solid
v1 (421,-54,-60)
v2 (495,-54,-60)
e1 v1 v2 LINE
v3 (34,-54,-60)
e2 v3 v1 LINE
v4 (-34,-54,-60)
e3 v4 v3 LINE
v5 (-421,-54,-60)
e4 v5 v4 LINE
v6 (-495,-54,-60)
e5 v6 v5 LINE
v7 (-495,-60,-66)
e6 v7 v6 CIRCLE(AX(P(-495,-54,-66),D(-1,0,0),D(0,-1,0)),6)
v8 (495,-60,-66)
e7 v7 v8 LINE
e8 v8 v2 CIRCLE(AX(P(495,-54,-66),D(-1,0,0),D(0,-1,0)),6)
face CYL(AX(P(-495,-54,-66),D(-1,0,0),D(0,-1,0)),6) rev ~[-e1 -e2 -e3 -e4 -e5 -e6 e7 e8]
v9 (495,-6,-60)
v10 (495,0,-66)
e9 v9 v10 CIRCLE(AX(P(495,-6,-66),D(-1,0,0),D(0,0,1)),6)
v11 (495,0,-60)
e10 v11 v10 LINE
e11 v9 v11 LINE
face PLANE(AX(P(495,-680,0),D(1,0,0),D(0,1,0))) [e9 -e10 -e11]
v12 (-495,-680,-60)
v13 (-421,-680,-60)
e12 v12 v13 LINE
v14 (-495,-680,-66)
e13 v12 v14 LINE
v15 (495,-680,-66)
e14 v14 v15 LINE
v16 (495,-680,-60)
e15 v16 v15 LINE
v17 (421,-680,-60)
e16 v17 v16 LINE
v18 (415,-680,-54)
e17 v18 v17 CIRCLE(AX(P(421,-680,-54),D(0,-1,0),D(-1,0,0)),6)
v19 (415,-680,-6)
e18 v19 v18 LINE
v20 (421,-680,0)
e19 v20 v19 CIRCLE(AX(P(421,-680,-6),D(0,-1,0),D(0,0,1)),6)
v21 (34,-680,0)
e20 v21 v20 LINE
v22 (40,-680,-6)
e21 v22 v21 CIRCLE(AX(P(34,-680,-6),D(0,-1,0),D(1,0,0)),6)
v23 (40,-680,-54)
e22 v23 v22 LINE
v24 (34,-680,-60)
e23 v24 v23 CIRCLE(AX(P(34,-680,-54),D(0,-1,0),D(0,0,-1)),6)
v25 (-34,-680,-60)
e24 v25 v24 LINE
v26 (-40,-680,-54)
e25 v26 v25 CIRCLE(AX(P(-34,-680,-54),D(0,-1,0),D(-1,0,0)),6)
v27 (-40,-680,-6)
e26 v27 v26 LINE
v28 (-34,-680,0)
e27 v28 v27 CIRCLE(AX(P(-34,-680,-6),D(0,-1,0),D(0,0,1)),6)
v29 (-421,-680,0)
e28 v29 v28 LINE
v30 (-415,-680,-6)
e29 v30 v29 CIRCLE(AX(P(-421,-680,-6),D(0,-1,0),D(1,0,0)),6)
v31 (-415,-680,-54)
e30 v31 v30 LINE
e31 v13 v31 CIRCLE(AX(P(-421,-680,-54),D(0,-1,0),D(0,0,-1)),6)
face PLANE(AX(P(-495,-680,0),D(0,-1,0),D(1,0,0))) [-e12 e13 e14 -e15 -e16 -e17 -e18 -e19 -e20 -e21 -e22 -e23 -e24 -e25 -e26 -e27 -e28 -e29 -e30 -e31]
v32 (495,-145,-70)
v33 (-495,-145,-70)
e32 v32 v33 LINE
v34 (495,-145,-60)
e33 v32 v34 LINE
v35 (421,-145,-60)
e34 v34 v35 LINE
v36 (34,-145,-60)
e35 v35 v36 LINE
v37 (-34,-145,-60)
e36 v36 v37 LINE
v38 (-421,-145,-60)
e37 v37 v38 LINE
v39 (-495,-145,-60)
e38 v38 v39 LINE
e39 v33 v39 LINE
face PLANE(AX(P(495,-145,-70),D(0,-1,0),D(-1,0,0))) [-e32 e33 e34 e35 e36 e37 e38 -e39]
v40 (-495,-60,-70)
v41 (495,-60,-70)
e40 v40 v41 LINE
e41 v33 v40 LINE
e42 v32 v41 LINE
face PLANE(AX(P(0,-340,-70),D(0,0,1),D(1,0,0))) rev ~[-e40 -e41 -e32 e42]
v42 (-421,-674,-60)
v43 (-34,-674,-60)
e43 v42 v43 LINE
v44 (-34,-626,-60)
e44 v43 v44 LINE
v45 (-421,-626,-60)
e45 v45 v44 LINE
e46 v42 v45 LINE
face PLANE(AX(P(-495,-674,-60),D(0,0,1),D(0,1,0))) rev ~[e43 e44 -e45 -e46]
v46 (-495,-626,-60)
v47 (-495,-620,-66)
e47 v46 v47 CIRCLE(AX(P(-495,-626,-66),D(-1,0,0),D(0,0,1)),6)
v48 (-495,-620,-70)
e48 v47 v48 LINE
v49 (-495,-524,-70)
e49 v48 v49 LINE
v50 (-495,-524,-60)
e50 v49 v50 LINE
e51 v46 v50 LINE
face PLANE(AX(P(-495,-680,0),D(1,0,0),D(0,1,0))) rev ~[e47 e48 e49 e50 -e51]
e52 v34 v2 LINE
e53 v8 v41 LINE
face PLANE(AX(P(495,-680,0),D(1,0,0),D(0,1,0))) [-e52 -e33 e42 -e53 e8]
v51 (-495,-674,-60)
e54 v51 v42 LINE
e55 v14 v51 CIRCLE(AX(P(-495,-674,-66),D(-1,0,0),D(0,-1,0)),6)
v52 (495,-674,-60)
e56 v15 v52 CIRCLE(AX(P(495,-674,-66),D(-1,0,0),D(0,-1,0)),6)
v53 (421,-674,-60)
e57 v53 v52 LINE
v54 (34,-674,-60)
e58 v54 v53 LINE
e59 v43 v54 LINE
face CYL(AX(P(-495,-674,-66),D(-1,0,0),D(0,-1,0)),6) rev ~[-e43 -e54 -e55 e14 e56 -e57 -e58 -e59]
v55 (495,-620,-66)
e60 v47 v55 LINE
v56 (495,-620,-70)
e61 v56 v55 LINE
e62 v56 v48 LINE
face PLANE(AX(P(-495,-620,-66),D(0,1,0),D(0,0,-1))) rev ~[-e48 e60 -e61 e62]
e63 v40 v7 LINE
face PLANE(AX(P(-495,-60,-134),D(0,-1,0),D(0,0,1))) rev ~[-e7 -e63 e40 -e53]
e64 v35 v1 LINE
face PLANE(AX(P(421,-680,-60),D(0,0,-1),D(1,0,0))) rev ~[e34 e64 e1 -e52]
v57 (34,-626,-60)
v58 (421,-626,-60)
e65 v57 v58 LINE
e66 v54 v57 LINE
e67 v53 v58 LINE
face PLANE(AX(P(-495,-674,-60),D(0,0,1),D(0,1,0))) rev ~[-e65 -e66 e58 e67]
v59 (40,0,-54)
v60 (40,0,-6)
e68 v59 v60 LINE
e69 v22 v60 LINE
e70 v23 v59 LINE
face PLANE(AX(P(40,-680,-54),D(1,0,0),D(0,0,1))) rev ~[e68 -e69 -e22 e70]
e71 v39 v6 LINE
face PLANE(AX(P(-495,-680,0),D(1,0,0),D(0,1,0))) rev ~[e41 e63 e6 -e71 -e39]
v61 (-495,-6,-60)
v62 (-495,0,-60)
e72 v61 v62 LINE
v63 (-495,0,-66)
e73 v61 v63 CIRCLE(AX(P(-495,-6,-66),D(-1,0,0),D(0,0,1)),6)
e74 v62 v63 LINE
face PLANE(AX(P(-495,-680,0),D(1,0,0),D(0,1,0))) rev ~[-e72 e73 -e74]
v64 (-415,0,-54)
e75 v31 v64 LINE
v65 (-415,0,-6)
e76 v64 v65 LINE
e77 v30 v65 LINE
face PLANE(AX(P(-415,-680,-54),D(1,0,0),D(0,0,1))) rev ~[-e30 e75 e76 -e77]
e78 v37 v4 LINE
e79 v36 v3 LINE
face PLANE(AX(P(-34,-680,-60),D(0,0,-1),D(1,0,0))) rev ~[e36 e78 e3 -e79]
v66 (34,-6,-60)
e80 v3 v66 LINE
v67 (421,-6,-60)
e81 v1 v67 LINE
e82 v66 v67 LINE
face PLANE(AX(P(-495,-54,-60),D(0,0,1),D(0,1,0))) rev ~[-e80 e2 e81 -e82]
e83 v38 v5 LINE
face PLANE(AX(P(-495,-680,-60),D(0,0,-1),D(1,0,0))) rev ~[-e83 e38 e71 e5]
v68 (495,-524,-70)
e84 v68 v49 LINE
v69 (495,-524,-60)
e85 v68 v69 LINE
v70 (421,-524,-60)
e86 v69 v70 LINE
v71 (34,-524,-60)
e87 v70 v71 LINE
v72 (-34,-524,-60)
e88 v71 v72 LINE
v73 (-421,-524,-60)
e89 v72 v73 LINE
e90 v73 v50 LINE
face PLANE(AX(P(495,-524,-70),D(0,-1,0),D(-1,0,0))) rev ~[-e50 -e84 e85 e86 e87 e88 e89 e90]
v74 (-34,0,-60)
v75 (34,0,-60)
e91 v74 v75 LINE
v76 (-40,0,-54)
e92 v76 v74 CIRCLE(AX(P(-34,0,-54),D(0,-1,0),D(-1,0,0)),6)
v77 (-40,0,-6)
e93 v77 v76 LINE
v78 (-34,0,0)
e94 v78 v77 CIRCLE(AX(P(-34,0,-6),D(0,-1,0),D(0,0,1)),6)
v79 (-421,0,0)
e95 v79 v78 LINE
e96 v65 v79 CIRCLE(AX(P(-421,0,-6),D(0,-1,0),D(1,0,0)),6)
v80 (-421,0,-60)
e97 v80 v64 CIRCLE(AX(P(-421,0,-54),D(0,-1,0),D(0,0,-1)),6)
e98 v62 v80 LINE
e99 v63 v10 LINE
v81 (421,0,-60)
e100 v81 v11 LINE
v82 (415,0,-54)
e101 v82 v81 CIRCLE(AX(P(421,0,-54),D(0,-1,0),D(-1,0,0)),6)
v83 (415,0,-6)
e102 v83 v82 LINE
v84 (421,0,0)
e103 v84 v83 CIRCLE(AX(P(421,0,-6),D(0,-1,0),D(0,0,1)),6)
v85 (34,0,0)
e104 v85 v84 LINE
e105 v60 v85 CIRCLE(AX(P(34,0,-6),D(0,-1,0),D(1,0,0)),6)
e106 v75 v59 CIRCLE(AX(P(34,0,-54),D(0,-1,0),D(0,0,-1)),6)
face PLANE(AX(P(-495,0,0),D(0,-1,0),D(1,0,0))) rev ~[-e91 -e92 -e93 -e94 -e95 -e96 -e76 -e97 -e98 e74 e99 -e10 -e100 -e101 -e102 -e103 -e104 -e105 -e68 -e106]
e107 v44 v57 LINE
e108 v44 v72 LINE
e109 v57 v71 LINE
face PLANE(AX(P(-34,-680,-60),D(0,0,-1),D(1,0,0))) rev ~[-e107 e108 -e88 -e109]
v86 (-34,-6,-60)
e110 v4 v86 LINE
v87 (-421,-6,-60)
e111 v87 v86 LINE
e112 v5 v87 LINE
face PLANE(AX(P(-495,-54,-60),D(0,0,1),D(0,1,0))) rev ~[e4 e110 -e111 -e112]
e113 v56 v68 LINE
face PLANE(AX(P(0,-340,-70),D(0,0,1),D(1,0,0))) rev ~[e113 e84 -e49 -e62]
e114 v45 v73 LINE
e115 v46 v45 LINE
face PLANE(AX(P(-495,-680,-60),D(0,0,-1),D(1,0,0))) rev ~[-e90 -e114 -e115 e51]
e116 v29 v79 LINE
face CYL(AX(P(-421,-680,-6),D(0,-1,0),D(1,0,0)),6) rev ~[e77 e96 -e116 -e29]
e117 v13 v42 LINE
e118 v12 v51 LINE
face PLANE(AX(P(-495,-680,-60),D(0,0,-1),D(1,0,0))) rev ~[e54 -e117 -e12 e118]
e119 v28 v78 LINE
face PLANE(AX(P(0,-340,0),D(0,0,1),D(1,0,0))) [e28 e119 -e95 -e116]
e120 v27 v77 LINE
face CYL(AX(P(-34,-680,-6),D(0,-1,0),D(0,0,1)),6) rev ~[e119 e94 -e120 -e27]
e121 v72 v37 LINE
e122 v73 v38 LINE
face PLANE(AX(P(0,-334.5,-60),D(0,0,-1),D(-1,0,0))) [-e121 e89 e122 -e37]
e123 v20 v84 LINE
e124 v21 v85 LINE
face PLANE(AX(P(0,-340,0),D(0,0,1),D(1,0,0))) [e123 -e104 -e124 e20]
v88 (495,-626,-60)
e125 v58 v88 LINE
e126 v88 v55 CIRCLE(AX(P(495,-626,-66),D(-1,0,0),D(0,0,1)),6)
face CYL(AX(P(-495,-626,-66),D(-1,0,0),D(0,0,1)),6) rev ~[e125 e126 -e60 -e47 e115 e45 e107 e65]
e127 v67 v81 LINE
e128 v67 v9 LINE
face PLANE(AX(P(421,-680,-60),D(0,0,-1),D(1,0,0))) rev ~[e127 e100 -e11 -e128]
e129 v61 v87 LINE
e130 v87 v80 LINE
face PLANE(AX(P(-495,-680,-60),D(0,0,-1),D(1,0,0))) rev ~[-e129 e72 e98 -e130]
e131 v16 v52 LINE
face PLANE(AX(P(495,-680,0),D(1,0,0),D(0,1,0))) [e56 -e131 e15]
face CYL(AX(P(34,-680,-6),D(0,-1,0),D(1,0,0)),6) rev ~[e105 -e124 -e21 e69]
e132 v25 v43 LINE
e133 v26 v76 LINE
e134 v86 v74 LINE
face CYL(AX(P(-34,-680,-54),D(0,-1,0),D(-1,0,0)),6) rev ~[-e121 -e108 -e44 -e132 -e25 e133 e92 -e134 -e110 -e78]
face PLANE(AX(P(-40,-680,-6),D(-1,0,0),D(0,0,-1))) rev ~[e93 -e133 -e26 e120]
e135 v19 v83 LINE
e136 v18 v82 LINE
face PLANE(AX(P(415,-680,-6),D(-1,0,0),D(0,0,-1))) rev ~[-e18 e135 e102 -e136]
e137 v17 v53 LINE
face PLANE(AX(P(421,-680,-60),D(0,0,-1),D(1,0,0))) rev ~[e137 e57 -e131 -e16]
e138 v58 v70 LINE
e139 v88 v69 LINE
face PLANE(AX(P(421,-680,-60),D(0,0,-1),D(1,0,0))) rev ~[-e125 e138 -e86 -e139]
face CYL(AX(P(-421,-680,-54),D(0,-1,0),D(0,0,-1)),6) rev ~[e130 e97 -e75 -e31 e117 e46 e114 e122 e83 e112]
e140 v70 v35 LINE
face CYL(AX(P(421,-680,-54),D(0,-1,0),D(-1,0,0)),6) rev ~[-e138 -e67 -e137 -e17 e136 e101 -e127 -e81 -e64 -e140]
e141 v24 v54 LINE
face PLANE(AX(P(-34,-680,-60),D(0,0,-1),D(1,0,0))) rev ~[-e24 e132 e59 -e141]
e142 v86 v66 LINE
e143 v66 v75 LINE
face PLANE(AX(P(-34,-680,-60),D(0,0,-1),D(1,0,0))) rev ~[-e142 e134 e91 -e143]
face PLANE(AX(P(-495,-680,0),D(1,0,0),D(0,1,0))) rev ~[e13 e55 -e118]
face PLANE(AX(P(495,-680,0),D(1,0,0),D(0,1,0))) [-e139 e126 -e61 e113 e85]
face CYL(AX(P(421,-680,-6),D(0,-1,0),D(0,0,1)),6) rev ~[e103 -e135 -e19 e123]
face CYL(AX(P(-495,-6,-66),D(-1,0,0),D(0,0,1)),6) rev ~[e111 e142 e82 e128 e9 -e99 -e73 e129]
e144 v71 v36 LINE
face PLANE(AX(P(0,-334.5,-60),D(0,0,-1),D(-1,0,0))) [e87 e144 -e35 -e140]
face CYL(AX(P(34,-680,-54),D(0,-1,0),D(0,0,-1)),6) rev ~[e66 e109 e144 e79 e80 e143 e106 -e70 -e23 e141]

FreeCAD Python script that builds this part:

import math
import FreeCAD as App
import Part
import Sketcher


def add_polygon(sketch, points):
    """Adds a closed chain of lines whose ends are joined by coincident constraints."""
    first, n = sketch.GeometryCount, len(points)
    for a, b in zip(points, points[1:] + points[:1]):
        sketch.addGeometry(Part.LineSegment(App.Vector(*a, 0), App.Vector(*b, 0)), False)
    for i in range(n):
        sketch.addConstraint(Sketcher.Constraint("Coincident", first + i, 2, first + (i + 1) % n, 1))

doc = App.newDocument("Part")
body = doc.addObject("PartDesign::Body", "Body")

sketch1 = doc.addObject("Sketcher::SketchObject", "Sketch")
body.addObject(sketch1)
sketch1.AttachmentSupport = (doc.XY_Plane, [""])
sketch1.MapMode = "FlatFace"
add_polygon(sketch1, [(-495, 0), (-495, -680), (495, -680), (495, 0)])
sketch1.addConstraint(Sketcher.Constraint("Vertical", 0))
sketch1.addConstraint(Sketcher.Constraint("Horizontal", 1))
sketch1.addConstraint(Sketcher.Constraint("Vertical", 2))
sketch1.addConstraint(Sketcher.Constraint("Horizontal", 3))
sketch1.addConstraint(Sketcher.Constraint("Symmetric", 2, 2, 3, 2, -1, 1))
sketch1.addConstraint(Sketcher.Constraint("DistanceX", 1, 1, 1, 2, 990.0))
sketch1.addConstraint(Sketcher.Constraint("DistanceY", 0, 2, 0, 1, 680.0))
pad1 = doc.addObject("PartDesign::Pad", "Pad")
body.addObject(pad1)
pad1.Profile = sketch1
pad1.Length = 70
pad1.Reversed = True

sketch2 = doc.addObject("Sketcher::SketchObject", "Sketch001")
body.addObject(sketch2)
sketch2.AttachmentSupport = (doc.XY_Plane, [""])
sketch2.MapMode = "FlatFace"
sketch2.AttachmentOffset = App.Placement(App.Vector(0, 0, -70), App.Rotation())
add_polygon(sketch2, [(495, -145), (495, -524), (-495, -524), (-495, -145)])
sketch2.addConstraint(Sketcher.Constraint("Vertical", 0))
sketch2.addConstraint(Sketcher.Constraint("Horizontal", 1))
sketch2.addConstraint(Sketcher.Constraint("Vertical", 2))
sketch2.addConstraint(Sketcher.Constraint("Horizontal", 3))
sketch2.addConstraint(Sketcher.Constraint("DistanceX", 1, 2, 1, 1, 990.0))
sketch2.addConstraint(Sketcher.Constraint("DistanceY", 0, 2, 0, 1, 379.0))
sketch2.addConstraint(Sketcher.Constraint("DistanceX", -1, 1, 0, 2, 495.0))
sketch2.addConstraint(Sketcher.Constraint("DistanceY", 0, 2, -1, 1, 524.0))
pocket1 = doc.addObject("PartDesign::Pocket", "Pocket")
body.addObject(pocket1)
pocket1.Profile = sketch2
pocket1.Length = 10
pocket1.Reversed = True

sketch3 = doc.addObject("Sketcher::SketchObject", "Sketch002")
body.addObject(sketch3)
sketch3.AttachmentSupport = (doc.YZ_Plane, [""])
sketch3.MapMode = "FlatFace"
sketch3.AttachmentOffset = App.Placement(App.Vector(0, 0, -495), App.Rotation())
sketch3.addGeometry(Part.LineSegment(App.Vector(-680, -134, 0), App.Vector(-680, -66, 0)), False)
sketch3.addGeometry(Part.ArcOfCircle(Part.Circle(App.Vector(-674, -66, 0), App.Vector(0, 0, 1), 6), math.radians(90), math.radians(180)), False)
sketch3.addGeometry(Part.LineSegment(App.Vector(-674, -60, 0), App.Vector(-626, -60, 0)), False)
sketch3.addGeometry(Part.ArcOfCircle(Part.Circle(App.Vector(-626, -66, 0), App.Vector(0, 0, 1), 6), math.radians(0), math.radians(90)), False)
sketch3.addGeometry(Part.LineSegment(App.Vector(-620, -66, 0), App.Vector(-620, -134, 0)), False)
sketch3.addGeometry(Part.ArcOfCircle(Part.Circle(App.Vector(-626, -134, 0), App.Vector(0, 0, 1), 6), math.radians(-90), math.radians(0)), False)
sketch3.addGeometry(Part.LineSegment(App.Vector(-626, -140, 0), App.Vector(-674, -140, 0)), False)
sketch3.addGeometry(Part.ArcOfCircle(Part.Circle(App.Vector(-674, -134, 0), App.Vector(0, 0, 1), 6), math.radians(180), math.radians(270)), False)
sketch3.addGeometry(Part.LineSegment(App.Vector(-60, -134, 0), App.Vector(-60, -66, 0)), False)
sketch3.addGeometry(Part.ArcOfCircle(Part.Circle(App.Vector(-54, -66, 0), App.Vector(0, 0, 1), 6), math.radians(90), math.radians(180)), False)
sketch3.addGeometry(Part.LineSegment(App.Vector(-54, -60, 0), App.Vector(-6, -60, 0)), False)
sketch3.addGeometry(Part.ArcOfCircle(Part.Circle(App.Vector(-6, -66, 0), App.Vector(0, 0, 1), 6), math.radians(0), math.radians(90)), False)
sketch3.addGeometry(Part.LineSegment(App.Vector(0, -66, 0), App.Vector(0, -134, 0)), False)
sketch3.addGeometry(Part.ArcOfCircle(Part.Circle(App.Vector(-6, -134, 0), App.Vector(0, 0, 1), 6), math.radians(-90), math.radians(0)), False)
sketch3.addGeometry(Part.LineSegment(App.Vector(-6, -140, 0), App.Vector(-54, -140, 0)), False)
sketch3.addGeometry(Part.ArcOfCircle(Part.Circle(App.Vector(-54, -134, 0), App.Vector(0, 0, 1), 6), math.radians(180), math.radians(270)), False)
sketch3.addConstraint(Sketcher.Constraint("Tangent", 0, 2, 1, 2))
sketch3.addConstraint(Sketcher.Constraint("Tangent", 1, 1, 2, 1))
sketch3.addConstraint(Sketcher.Constraint("Tangent", 2, 2, 3, 2))
sketch3.addConstraint(Sketcher.Constraint("Tangent", 3, 1, 4, 1))
sketch3.addConstraint(Sketcher.Constraint("Tangent", 4, 2, 5, 2))
sketch3.addConstraint(Sketcher.Constraint("Tangent", 5, 1, 6, 1))
sketch3.addConstraint(Sketcher.Constraint("Tangent", 6, 2, 7, 2))
sketch3.addConstraint(Sketcher.Constraint("Tangent", 7, 1, 0, 1))
sketch3.addConstraint(Sketcher.Constraint("Tangent", 8, 2, 9, 2))
sketch3.addConstraint(Sketcher.Constraint("Tangent", 9, 1, 10, 1))
sketch3.addConstraint(Sketcher.Constraint("Tangent", 10, 2, 11, 2))
sketch3.addConstraint(Sketcher.Constraint("Tangent", 11, 1, 12, 1))
sketch3.addConstraint(Sketcher.Constraint("Tangent", 12, 2, 13, 2))
sketch3.addConstraint(Sketcher.Constraint("Tangent", 13, 1, 14, 1))
sketch3.addConstraint(Sketcher.Constraint("Tangent", 14, 2, 15, 2))
sketch3.addConstraint(Sketcher.Constraint("Tangent", 15, 1, 8, 1))
sketch3.addConstraint(Sketcher.Constraint("Vertical", 0))
sketch3.addConstraint(Sketcher.Constraint("Horizontal", 2))
sketch3.addConstraint(Sketcher.Constraint("Vertical", 4))
sketch3.addConstraint(Sketcher.Constraint("Horizontal", 6))
sketch3.addConstraint(Sketcher.Constraint("Vertical", 8))
sketch3.addConstraint(Sketcher.Constraint("Horizontal", 10))
sketch3.addConstraint(Sketcher.Constraint("Vertical", 12))
sketch3.addConstraint(Sketcher.Constraint("Horizontal", 14))
sketch3.addConstraint(Sketcher.Constraint("Equal", 1, 3))
sketch3.addConstraint(Sketcher.Constraint("Equal", 3, 5))
sketch3.addConstraint(Sketcher.Constraint("Equal", 5, 7))
sketch3.addConstraint(Sketcher.Constraint("Equal", 7, 9))
sketch3.addConstraint(Sketcher.Constraint("Equal", 9, 11))
sketch3.addConstraint(Sketcher.Constraint("Equal", 11, 13))
sketch3.addConstraint(Sketcher.Constraint("Equal", 13, 15))
sketch3.addConstraint(Sketcher.Constraint("PointOnObject", 11, 1, -2))
sketch3.addConstraint(Sketcher.Constraint("Horizontal", 3, 3, 9, 3))
sketch3.addConstraint(Sketcher.Constraint("Horizontal", 7, 3, 13, 3))
sketch3.addConstraint(Sketcher.Constraint("Equal", 6, 10))
sketch3.addConstraint(Sketcher.Constraint("Radius", 1, 6.0))
sketch3.addConstraint(Sketcher.Constraint("DistanceX", 2, 1, 2, 2, 48.0))
sketch3.addConstraint(Sketcher.Constraint("DistanceY", 0, 1, 0, 2, 68.0))
sketch3.addConstraint(Sketcher.Constraint("DistanceX", 1, 3, -1, 1, 674.0))
sketch3.addConstraint(Sketcher.Constraint("DistanceY", 1, 3, -1, 1, 66.0))
pocket2 = doc.addObject("PartDesign::Pocket", "Pocket001")
body.addObject(pocket2)
pocket2.Profile = sketch3
pocket2.Type = "ThroughAll"
pocket2.Reversed = True

sketch4 = doc.addObject("Sketcher::SketchObject", "Sketch003")
body.addObject(sketch4)
sketch4.AttachmentSupport = (doc.XZ_Plane, [""])
sketch4.MapMode = "FlatFace"
sketch4.AttachmentOffset = App.Placement(App.Vector(0, 0, 680), App.Rotation())
sketch4.addGeometry(Part.ArcOfCircle(Part.Circle(App.Vector(421, -6, 0), App.Vector(0, 0, 1), 6), math.radians(90), math.radians(180)), False)
sketch4.addGeometry(Part.LineSegment(App.Vector(415, -6, 0), App.Vector(415, -54, 0)), False)
sketch4.addGeometry(Part.ArcOfCircle(Part.Circle(App.Vector(421, -54, 0), App.Vector(0, 0, 1), 6), math.radians(180), math.radians(270)), False)
sketch4.addGeometry(Part.LineSegment(App.Vector(421, -60, 0), App.Vector(495, -60, 0)), False)
sketch4.addGeometry(Part.LineSegment(App.Vector(495, -60, 0), App.Vector(495, 0, 0)), False)
sketch4.addGeometry(Part.LineSegment(App.Vector(495, 0, 0), App.Vector(421, 0, 0)), False)
sketch4.addGeometry(Part.LineSegment(App.Vector(34, 0, 0), App.Vector(-34, 0, 0)), False)
sketch4.addGeometry(Part.ArcOfCircle(Part.Circle(App.Vector(-34, -6, 0), App.Vector(0, 0, 1), 6), math.radians(90), math.radians(180)), False)
sketch4.addGeometry(Part.LineSegment(App.Vector(-40, -6, 0), App.Vector(-40, -54, 0)), False)
sketch4.addGeometry(Part.ArcOfCircle(Part.Circle(App.Vector(-34, -54, 0), App.Vector(0, 0, 1), 6), math.radians(180), math.radians(270)), False)
sketch4.addGeometry(Part.LineSegment(App.Vector(-34, -60, 0), App.Vector(34, -60, 0)), False)
sketch4.addGeometry(Part.ArcOfCircle(Part.Circle(App.Vector(34, -54, 0), App.Vector(0, 0, 1), 6), math.radians(-90), math.radians(0)), False)
sketch4.addGeometry(Part.LineSegment(App.Vector(40, -54, 0), App.Vector(40, -6, 0)), False)
sketch4.addGeometry(Part.ArcOfCircle(Part.Circle(App.Vector(34, -6, 0), App.Vector(0, 0, 1), 6), math.radians(0), math.radians(90)), False)
sketch4.addGeometry(Part.ArcOfCircle(Part.Circle(App.Vector(-421, -54, 0), App.Vector(0, 0, 1), 6), math.radians(-90), math.radians(0)), False)
sketch4.addGeometry(Part.LineSegment(App.Vector(-415, -54, 0), App.Vector(-415, -6, 0)), False)
sketch4.addGeometry(Part.ArcOfCircle(Part.Circle(App.Vector(-421, -6, 0), App.Vector(0, 0, 1), 6), math.radians(0), math.radians(90)), False)
sketch4.addGeometry(Part.LineSegment(App.Vector(-421, 0, 0), App.Vector(-495, 0, 0)), False)
sketch4.addGeometry(Part.LineSegment(App.Vector(-495, 0, 0), App.Vector(-495, -60, 0)), False)
sketch4.addGeometry(Part.LineSegment(App.Vector(-495, -60, 0), App.Vector(-421, -60, 0)), False)
sketch4.addConstraint(Sketcher.Constraint("Tangent", 0, 2, 1, 1))
sketch4.addConstraint(Sketcher.Constraint("Tangent", 1, 2, 2, 1))
sketch4.addConstraint(Sketcher.Constraint("Tangent", 2, 2, 3, 1))
sketch4.addConstraint(Sketcher.Constraint("Coincident", 3, 2, 4, 1))
sketch4.addConstraint(Sketcher.Constraint("Coincident", 4, 2, 5, 1))
sketch4.addConstraint(Sketcher.Constraint("Tangent", 5, 2, 0, 1))
sketch4.addConstraint(Sketcher.Constraint("Tangent", 6, 2, 7, 1))
sketch4.addConstraint(Sketcher.Constraint("Tangent", 7, 2, 8, 1))
sketch4.addConstraint(Sketcher.Constraint("Tangent", 8, 2, 9, 1))
sketch4.addConstraint(Sketcher.Constraint("Tangent", 9, 2, 10, 1))
sketch4.addConstraint(Sketcher.Constraint("Tangent", 10, 2, 11, 1))
sketch4.addConstraint(Sketcher.Constraint("Tangent", 11, 2, 12, 1))
sketch4.addConstraint(Sketcher.Constraint("Tangent", 12, 2, 13, 1))
sketch4.addConstraint(Sketcher.Constraint("Tangent", 13, 2, 6, 1))
sketch4.addConstraint(Sketcher.Constraint("Tangent", 14, 2, 15, 1))
sketch4.addConstraint(Sketcher.Constraint("Tangent", 15, 2, 16, 1))
sketch4.addConstraint(Sketcher.Constraint("Tangent", 16, 2, 17, 1))
sketch4.addConstraint(Sketcher.Constraint("Coincident", 17, 2, 18, 1))
sketch4.addConstraint(Sketcher.Constraint("Coincident", 18, 2, 19, 1))
sketch4.addConstraint(Sketcher.Constraint("Tangent", 19, 2, 14, 1))
sketch4.addConstraint(Sketcher.Constraint("Vertical", 1))
sketch4.addConstraint(Sketcher.Constraint("Horizontal", 3))
sketch4.addConstraint(Sketcher.Constraint("Vertical", 4))
sketch4.addConstraint(Sketcher.Constraint("Horizontal", 5))
sketch4.addConstraint(Sketcher.Constraint("Horizontal", 6))
sketch4.addConstraint(Sketcher.Constraint("Vertical", 8))
sketch4.addConstraint(Sketcher.Constraint("Horizontal", 10))
sketch4.addConstraint(Sketcher.Constraint("Vertical", 12))
sketch4.addConstraint(Sketcher.Constraint("Vertical", 15))
sketch4.addConstraint(Sketcher.Constraint("Horizontal", 17))
sketch4.addConstraint(Sketcher.Constraint("Vertical", 18))
sketch4.addConstraint(Sketcher.Constraint("Horizontal", 19))
sketch4.addConstraint(Sketcher.Constraint("Equal", 0, 2))
sketch4.addConstraint(Sketcher.Constraint("Equal", 2, 7))
sketch4.addConstraint(Sketcher.Constraint("Equal", 7, 9))
sketch4.addConstraint(Sketcher.Constraint("Equal", 9, 11))
sketch4.addConstraint(Sketcher.Constraint("Equal", 11, 13))
sketch4.addConstraint(Sketcher.Constraint("Equal", 13, 14))
sketch4.addConstraint(Sketcher.Constraint("Equal", 14, 16))
sketch4.addConstraint(Sketcher.Constraint("Symmetric", 6, 2, 13, 2, -1, 1))
sketch4.addConstraint(Sketcher.Constraint("Symmetric", 5, 2, 16, 2, -1, 1))
sketch4.addConstraint(Sketcher.Constraint("Symmetric", 4, 2, 17, 2, -2))
sketch4.addConstraint(Sketcher.Constraint("Horizontal", 2, 3, 9, 3))
sketch4.addConstraint(Sketcher.Constraint("Horizontal", 11, 3, 14, 3))
sketch4.addConstraint(Sketcher.Constraint("Radius", 0, 6.0))
sketch4.addConstraint(Sketcher.Constraint("DistanceX", 3, 1, 3, 2, 74.0))
sketch4.addConstraint(Sketcher.Constraint("DistanceX", 6, 2, 6, 1, 68.0))
sketch4.addConstraint(Sketcher.Constraint("DistanceY", 1, 2, 1, 1, 48.0))
sketch4.addConstraint(Sketcher.Constraint("DistanceX", -1, 1, 0, 3, 421.0))
pocket3 = doc.addObject("PartDesign::Pocket", "Pocket002")
body.addObject(pocket3)
pocket3.Profile = sketch4
pocket3.Type = "ThroughAll"

doc.recompute()
